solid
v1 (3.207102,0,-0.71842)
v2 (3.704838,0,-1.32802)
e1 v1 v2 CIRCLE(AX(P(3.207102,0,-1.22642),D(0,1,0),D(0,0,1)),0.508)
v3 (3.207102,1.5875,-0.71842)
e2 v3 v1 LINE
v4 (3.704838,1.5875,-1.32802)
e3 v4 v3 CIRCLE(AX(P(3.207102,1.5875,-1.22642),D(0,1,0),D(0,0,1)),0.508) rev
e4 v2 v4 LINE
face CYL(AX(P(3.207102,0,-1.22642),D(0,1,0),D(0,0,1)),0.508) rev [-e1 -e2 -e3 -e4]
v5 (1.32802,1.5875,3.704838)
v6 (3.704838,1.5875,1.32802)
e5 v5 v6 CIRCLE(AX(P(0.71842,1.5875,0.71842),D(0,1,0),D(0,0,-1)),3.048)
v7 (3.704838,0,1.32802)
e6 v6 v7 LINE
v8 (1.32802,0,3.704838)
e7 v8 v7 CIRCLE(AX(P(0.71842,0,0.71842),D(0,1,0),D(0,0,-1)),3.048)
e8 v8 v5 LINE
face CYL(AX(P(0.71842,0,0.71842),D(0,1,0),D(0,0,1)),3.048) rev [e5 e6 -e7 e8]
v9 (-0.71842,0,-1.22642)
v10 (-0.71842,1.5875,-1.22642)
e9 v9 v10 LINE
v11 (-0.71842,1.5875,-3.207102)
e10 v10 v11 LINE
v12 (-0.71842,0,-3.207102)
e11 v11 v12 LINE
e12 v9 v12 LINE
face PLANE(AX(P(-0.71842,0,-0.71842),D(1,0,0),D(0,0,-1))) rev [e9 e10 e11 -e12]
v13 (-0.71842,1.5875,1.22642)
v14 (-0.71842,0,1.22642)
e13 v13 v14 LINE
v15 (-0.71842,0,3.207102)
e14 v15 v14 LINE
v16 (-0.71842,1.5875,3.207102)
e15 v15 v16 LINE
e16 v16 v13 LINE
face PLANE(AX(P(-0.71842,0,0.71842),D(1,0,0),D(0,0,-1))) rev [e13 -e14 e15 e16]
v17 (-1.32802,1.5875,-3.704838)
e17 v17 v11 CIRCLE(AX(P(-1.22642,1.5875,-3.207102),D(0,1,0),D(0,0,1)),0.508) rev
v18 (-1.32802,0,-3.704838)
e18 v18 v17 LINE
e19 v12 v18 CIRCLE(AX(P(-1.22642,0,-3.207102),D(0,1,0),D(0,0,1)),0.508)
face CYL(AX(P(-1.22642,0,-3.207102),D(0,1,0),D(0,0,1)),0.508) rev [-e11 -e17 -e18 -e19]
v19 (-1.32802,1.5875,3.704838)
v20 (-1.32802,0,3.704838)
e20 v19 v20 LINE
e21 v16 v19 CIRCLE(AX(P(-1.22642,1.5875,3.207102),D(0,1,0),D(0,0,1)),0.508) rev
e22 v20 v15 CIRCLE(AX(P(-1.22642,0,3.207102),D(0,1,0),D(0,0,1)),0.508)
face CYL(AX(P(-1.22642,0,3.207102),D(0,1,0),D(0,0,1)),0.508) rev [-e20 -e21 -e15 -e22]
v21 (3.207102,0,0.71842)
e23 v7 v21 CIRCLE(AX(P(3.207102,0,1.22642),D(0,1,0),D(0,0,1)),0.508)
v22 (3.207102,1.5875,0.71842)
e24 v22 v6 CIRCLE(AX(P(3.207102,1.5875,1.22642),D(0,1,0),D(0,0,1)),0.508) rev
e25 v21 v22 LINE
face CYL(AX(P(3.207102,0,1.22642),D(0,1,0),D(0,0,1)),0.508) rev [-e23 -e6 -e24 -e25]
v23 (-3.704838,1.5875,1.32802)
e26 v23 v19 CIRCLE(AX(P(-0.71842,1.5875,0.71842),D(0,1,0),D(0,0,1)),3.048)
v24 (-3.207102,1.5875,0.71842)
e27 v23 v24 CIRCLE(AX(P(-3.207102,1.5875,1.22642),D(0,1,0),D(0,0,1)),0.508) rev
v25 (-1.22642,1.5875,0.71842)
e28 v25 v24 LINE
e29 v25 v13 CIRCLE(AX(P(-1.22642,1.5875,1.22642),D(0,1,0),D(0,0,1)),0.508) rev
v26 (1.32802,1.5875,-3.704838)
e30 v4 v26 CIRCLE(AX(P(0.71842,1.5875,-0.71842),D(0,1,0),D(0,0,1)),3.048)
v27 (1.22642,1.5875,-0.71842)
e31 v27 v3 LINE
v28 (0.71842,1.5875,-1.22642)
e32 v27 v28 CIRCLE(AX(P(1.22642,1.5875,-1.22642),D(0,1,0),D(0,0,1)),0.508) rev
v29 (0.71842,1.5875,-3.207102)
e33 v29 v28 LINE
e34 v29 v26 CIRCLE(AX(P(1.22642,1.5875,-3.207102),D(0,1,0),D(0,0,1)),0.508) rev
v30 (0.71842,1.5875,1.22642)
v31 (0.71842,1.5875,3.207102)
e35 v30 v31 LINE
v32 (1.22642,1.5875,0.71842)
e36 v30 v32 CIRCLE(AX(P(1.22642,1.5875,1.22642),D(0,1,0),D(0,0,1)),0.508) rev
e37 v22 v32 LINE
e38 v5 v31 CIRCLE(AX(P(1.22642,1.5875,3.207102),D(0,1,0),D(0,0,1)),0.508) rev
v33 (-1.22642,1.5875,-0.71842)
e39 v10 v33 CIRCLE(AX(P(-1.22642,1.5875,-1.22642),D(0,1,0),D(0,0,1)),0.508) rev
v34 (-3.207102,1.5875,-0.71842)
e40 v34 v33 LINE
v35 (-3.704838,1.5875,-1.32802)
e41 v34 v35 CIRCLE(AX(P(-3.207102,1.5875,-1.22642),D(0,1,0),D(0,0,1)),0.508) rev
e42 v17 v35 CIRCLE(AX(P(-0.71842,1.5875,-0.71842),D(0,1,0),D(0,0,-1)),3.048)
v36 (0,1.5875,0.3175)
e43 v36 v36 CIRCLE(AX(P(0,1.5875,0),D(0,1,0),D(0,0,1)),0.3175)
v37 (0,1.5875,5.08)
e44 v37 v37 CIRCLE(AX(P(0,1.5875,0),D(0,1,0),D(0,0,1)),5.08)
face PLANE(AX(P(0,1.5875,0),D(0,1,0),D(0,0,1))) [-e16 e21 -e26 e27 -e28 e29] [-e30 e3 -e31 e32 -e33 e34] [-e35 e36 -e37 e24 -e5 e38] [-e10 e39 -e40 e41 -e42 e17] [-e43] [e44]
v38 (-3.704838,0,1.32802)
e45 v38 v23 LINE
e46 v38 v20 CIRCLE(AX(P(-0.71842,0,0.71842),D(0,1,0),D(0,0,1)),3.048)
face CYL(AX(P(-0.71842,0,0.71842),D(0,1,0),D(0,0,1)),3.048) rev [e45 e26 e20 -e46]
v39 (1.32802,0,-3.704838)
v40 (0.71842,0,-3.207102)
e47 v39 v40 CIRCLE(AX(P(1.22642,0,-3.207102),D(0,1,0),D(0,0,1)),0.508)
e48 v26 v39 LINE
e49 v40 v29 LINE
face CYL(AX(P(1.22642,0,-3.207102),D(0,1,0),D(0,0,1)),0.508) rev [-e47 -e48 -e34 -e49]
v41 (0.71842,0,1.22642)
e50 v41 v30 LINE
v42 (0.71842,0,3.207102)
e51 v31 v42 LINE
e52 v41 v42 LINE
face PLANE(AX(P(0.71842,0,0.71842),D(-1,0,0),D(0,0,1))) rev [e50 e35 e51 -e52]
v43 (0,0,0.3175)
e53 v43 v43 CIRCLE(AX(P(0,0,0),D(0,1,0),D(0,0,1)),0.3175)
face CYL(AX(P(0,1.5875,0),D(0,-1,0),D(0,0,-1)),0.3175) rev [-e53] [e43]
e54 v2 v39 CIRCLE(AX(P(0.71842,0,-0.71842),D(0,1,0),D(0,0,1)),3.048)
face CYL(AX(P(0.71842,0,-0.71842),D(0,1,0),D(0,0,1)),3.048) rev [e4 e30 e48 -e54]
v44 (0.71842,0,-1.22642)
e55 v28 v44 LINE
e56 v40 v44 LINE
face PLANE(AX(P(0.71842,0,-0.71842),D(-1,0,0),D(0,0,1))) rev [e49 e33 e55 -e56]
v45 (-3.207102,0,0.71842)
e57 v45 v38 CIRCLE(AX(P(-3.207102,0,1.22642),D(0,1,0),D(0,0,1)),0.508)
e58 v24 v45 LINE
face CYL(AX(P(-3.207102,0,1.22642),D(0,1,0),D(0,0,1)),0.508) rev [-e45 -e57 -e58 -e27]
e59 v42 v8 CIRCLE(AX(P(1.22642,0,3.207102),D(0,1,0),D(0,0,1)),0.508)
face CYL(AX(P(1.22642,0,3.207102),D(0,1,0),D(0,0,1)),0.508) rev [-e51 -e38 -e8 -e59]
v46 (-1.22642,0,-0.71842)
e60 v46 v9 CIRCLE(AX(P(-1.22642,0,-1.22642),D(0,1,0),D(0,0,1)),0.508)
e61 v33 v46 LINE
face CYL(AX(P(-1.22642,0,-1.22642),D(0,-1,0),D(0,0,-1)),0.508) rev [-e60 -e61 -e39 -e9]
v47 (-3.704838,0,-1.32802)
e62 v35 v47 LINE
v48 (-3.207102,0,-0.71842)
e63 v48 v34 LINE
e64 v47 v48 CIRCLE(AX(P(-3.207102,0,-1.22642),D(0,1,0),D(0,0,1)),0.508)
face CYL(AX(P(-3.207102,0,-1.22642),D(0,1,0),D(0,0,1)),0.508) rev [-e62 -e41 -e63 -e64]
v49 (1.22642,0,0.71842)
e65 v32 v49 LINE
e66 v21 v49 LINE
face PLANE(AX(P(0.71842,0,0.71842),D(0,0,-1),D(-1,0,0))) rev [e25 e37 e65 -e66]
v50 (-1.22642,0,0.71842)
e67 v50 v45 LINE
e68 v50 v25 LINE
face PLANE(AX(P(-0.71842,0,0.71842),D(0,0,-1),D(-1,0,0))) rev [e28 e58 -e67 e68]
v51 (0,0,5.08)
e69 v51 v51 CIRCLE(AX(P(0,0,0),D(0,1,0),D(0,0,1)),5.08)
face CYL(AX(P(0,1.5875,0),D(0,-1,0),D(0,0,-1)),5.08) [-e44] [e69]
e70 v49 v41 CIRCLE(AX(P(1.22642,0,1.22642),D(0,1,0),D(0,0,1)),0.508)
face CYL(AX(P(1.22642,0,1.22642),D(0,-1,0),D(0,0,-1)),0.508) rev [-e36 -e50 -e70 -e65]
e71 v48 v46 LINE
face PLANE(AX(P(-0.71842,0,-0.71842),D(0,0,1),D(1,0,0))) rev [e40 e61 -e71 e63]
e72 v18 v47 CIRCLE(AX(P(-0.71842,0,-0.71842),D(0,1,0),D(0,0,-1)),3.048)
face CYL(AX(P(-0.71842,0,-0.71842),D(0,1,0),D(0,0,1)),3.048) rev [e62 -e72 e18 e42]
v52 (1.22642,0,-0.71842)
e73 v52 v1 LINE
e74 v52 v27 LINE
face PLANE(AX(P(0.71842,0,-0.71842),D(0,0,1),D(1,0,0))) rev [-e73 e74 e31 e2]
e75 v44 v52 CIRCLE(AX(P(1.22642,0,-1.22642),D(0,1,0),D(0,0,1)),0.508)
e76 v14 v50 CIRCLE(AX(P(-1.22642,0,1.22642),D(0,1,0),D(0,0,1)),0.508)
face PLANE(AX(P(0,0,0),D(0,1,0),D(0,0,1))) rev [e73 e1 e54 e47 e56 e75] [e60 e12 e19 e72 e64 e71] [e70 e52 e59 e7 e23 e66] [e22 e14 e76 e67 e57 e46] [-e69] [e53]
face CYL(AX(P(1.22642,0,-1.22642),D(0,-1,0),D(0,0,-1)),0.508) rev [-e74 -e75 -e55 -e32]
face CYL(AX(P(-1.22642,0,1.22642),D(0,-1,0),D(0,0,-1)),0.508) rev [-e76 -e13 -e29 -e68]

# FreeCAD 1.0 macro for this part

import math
import FreeCAD as App
import Part
import Sketcher

V = App.Vector
Q = App.Units.Quantity


def edges_at(feature, points):
    """Names of the edges that pass closest to the given points."""
    edges = feature.Shape.Edges
    near = lambda p: min(range(len(edges)), key=lambda i: edges[i].distToShape(Part.Vertex(*p))[0])
    return sorted({f"Edge{near(p) + 1}" for p in points})

doc = App.newDocument("Part")
body = doc.addObject("PartDesign::Body", "Body")

sketch1 = body.newObject("Sketcher::SketchObject", "Sketch")
sketch1.AttachmentSupport = (doc.getObject("XZ_Plane"), [""])
sketch1.MapMode = "FlatFace"
sketch1.addGeometry([
    Part.Circle(V(0, 0, 0), V(0, 0, 1), 5.08),
    Part.Circle(V(0, 0, 0), V(0, 0, 1), 0.32),
], False)
sketch1.addConstraint([
    Sketcher.Constraint("Coincident", 0, 3, -1, 1),
    Sketcher.Constraint("Coincident", 1, 3, -1, 1),
    Sketcher.Constraint("Diameter", 0, Q("0.4 in")),
    Sketcher.Constraint("Diameter", 1, Q("0.025 in")),
])
pad1 = body.newObject("PartDesign::Pad", "Pad")
pad1.Profile = sketch1
pad1.Length = Q("0.0625 in")
pad1.Reversed = True

sketch2 = body.newObject("Sketcher::SketchObject", "Sketch001")
sketch2.AttachmentSupport = (doc.getObject("XZ_Plane"), [""])
sketch2.MapMode = "FlatFace"
sketch2.AttachmentOffset = App.Placement(V(0, 0, -0.0625 * 25.4), App.Rotation())
sketch2.addGeometry([
    Part.LineSegment(V(-0.7, -0.7, 0), V(-0.7, -3.8, 0)),
    Part.ArcOfCircle(Part.Circle(V(-0.7, -0.7, 0), V(0, 0, 1), 3), math.radians(180), math.radians(270)),
    Part.LineSegment(V(-3.8, -0.7, 0), V(-0.7, -0.7, 0)),
    Part.LineSegment(V(0.7, -0.7, 0), V(3.8, -0.7, 0)),
    Part.ArcOfCircle(Part.Circle(V(0.7, -0.7, 0), V(0, 0, 1), 3), math.radians(-90), math.radians(0)),
    Part.LineSegment(V(0.7, -3.8, 0), V(0.7, -0.7, 0)),
    Part.LineSegment(V(3.8, 0.7, 0), V(0.7, 0.7, 0)),
    Part.LineSegment(V(0.7, 0.7, 0), V(0.7, 3.8, 0)),
    Part.ArcOfCircle(Part.Circle(V(0.7, 0.7, 0), V(0, 0, 1), 3), math.radians(0), math.radians(90)),
    Part.LineSegment(V(-0.7, 3.8, 0), V(-0.7, 0.7, 0)),
    Part.LineSegment(V(-0.7, 0.7, 0), V(-3.8, 0.7, 0)),
    Part.ArcOfCircle(Part.Circle(V(-0.7, 0.7, 0), V(0, 0, 1), 3), math.radians(90), math.radians(180)),
], False)
sketch2.addConstraint([
    Sketcher.Constraint("Coincident", 0, 2, 1, 2),
    Sketcher.Constraint("Coincident", 1, 1, 2, 1),
    Sketcher.Constraint("Coincident", 2, 2, 0, 1),
    Sketcher.Constraint("Coincident", 3, 2, 4, 2),
    Sketcher.Constraint("Coincident", 4, 1, 5, 1),
    Sketcher.Constraint("Coincident", 5, 2, 3, 1),
    Sketcher.Constraint("Coincident", 6, 2, 7, 1),
    Sketcher.Constraint("Coincident", 7, 2, 8, 2),
    Sketcher.Constraint("Coincident", 8, 1, 6, 1),
    Sketcher.Constraint("Coincident", 9, 2, 10, 1),
    Sketcher.Constraint("Coincident", 10, 2, 11, 2),
    Sketcher.Constraint("Coincident", 11, 1, 9, 1),
    Sketcher.Constraint("Vertical", 0),
    Sketcher.Constraint("Horizontal", 2),
    Sketcher.Constraint("Horizontal", 3),
    Sketcher.Constraint("Vertical", 5),
    Sketcher.Constraint("Horizontal", 6),
    Sketcher.Constraint("Vertical", 7),
    Sketcher.Constraint("Vertical", 9),
    Sketcher.Constraint("Horizontal", 10),
    Sketcher.Constraint("Coincident", 2, 2, 1, 3),
    Sketcher.Constraint("Coincident", 5, 2, 4, 3),
    Sketcher.Constraint("Coincident", 6, 2, 8, 3),
    Sketcher.Constraint("Coincident", 9, 2, 11, 3),
    Sketcher.Constraint("Equal", 1, 4),
    Sketcher.Constraint("Equal", 4, 8),
    Sketcher.Constraint("Equal", 8, 11),
    Sketcher.Constraint("Symmetric", 1, 3, 8, 3, -1, 1),
    Sketcher.Constraint("Symmetric", 4, 3, 11, 3, -1, 1),
    Sketcher.Constraint("Symmetric", 1, 3, 4, 3, -2),
    Sketcher.Constraint("Radius", 1, Q("0.12 in")),
    Sketcher.Constraint("DistanceX", 1, 3, -1, 1, Q("0.71842 mm")),
    Sketcher.Constraint("DistanceY", 1, 3, -1, 1, Q("0.71842 mm")),
])
pocket1 = body.newObject("PartDesign::Pocket", "Pocket")
pocket1.Profile = sketch2
pocket1.Type = "ThroughAll"
pocket1.Reversed = True
doc.recompute()

fillet = body.newObject("PartDesign::Fillet", "Fillet")
fillet.Base = (pocket1, edges_at(pocket1, [
    (-0.718, 0.794, -0.718),
    (0.718, 0.794, -0.718),
    (0.718, 0.794, 0.718),
    (-0.718, 0.794, 0.718),
]))
fillet.Radius = Q("0.02 in")
doc.recompute()

fillet2 = body.newObject("PartDesign::Fillet", "Fillet001")
fillet2.Base = (fillet, edges_at(fillet, [
    (-3.766, 0.794, -0.718),
    (-0.718, 0.794, -3.766),
    (0.718, 0.794, -3.766),
    (3.766, 0.794, -0.718),
    (0.718, 0.794, 3.766),
    (3.766, 0.794, 0.718),
    (-3.766, 0.794, 0.718),
    (-0.718, 0.794, 3.766),
]))
fillet2.Radius = Q("0.02 in")

doc.recompute()
